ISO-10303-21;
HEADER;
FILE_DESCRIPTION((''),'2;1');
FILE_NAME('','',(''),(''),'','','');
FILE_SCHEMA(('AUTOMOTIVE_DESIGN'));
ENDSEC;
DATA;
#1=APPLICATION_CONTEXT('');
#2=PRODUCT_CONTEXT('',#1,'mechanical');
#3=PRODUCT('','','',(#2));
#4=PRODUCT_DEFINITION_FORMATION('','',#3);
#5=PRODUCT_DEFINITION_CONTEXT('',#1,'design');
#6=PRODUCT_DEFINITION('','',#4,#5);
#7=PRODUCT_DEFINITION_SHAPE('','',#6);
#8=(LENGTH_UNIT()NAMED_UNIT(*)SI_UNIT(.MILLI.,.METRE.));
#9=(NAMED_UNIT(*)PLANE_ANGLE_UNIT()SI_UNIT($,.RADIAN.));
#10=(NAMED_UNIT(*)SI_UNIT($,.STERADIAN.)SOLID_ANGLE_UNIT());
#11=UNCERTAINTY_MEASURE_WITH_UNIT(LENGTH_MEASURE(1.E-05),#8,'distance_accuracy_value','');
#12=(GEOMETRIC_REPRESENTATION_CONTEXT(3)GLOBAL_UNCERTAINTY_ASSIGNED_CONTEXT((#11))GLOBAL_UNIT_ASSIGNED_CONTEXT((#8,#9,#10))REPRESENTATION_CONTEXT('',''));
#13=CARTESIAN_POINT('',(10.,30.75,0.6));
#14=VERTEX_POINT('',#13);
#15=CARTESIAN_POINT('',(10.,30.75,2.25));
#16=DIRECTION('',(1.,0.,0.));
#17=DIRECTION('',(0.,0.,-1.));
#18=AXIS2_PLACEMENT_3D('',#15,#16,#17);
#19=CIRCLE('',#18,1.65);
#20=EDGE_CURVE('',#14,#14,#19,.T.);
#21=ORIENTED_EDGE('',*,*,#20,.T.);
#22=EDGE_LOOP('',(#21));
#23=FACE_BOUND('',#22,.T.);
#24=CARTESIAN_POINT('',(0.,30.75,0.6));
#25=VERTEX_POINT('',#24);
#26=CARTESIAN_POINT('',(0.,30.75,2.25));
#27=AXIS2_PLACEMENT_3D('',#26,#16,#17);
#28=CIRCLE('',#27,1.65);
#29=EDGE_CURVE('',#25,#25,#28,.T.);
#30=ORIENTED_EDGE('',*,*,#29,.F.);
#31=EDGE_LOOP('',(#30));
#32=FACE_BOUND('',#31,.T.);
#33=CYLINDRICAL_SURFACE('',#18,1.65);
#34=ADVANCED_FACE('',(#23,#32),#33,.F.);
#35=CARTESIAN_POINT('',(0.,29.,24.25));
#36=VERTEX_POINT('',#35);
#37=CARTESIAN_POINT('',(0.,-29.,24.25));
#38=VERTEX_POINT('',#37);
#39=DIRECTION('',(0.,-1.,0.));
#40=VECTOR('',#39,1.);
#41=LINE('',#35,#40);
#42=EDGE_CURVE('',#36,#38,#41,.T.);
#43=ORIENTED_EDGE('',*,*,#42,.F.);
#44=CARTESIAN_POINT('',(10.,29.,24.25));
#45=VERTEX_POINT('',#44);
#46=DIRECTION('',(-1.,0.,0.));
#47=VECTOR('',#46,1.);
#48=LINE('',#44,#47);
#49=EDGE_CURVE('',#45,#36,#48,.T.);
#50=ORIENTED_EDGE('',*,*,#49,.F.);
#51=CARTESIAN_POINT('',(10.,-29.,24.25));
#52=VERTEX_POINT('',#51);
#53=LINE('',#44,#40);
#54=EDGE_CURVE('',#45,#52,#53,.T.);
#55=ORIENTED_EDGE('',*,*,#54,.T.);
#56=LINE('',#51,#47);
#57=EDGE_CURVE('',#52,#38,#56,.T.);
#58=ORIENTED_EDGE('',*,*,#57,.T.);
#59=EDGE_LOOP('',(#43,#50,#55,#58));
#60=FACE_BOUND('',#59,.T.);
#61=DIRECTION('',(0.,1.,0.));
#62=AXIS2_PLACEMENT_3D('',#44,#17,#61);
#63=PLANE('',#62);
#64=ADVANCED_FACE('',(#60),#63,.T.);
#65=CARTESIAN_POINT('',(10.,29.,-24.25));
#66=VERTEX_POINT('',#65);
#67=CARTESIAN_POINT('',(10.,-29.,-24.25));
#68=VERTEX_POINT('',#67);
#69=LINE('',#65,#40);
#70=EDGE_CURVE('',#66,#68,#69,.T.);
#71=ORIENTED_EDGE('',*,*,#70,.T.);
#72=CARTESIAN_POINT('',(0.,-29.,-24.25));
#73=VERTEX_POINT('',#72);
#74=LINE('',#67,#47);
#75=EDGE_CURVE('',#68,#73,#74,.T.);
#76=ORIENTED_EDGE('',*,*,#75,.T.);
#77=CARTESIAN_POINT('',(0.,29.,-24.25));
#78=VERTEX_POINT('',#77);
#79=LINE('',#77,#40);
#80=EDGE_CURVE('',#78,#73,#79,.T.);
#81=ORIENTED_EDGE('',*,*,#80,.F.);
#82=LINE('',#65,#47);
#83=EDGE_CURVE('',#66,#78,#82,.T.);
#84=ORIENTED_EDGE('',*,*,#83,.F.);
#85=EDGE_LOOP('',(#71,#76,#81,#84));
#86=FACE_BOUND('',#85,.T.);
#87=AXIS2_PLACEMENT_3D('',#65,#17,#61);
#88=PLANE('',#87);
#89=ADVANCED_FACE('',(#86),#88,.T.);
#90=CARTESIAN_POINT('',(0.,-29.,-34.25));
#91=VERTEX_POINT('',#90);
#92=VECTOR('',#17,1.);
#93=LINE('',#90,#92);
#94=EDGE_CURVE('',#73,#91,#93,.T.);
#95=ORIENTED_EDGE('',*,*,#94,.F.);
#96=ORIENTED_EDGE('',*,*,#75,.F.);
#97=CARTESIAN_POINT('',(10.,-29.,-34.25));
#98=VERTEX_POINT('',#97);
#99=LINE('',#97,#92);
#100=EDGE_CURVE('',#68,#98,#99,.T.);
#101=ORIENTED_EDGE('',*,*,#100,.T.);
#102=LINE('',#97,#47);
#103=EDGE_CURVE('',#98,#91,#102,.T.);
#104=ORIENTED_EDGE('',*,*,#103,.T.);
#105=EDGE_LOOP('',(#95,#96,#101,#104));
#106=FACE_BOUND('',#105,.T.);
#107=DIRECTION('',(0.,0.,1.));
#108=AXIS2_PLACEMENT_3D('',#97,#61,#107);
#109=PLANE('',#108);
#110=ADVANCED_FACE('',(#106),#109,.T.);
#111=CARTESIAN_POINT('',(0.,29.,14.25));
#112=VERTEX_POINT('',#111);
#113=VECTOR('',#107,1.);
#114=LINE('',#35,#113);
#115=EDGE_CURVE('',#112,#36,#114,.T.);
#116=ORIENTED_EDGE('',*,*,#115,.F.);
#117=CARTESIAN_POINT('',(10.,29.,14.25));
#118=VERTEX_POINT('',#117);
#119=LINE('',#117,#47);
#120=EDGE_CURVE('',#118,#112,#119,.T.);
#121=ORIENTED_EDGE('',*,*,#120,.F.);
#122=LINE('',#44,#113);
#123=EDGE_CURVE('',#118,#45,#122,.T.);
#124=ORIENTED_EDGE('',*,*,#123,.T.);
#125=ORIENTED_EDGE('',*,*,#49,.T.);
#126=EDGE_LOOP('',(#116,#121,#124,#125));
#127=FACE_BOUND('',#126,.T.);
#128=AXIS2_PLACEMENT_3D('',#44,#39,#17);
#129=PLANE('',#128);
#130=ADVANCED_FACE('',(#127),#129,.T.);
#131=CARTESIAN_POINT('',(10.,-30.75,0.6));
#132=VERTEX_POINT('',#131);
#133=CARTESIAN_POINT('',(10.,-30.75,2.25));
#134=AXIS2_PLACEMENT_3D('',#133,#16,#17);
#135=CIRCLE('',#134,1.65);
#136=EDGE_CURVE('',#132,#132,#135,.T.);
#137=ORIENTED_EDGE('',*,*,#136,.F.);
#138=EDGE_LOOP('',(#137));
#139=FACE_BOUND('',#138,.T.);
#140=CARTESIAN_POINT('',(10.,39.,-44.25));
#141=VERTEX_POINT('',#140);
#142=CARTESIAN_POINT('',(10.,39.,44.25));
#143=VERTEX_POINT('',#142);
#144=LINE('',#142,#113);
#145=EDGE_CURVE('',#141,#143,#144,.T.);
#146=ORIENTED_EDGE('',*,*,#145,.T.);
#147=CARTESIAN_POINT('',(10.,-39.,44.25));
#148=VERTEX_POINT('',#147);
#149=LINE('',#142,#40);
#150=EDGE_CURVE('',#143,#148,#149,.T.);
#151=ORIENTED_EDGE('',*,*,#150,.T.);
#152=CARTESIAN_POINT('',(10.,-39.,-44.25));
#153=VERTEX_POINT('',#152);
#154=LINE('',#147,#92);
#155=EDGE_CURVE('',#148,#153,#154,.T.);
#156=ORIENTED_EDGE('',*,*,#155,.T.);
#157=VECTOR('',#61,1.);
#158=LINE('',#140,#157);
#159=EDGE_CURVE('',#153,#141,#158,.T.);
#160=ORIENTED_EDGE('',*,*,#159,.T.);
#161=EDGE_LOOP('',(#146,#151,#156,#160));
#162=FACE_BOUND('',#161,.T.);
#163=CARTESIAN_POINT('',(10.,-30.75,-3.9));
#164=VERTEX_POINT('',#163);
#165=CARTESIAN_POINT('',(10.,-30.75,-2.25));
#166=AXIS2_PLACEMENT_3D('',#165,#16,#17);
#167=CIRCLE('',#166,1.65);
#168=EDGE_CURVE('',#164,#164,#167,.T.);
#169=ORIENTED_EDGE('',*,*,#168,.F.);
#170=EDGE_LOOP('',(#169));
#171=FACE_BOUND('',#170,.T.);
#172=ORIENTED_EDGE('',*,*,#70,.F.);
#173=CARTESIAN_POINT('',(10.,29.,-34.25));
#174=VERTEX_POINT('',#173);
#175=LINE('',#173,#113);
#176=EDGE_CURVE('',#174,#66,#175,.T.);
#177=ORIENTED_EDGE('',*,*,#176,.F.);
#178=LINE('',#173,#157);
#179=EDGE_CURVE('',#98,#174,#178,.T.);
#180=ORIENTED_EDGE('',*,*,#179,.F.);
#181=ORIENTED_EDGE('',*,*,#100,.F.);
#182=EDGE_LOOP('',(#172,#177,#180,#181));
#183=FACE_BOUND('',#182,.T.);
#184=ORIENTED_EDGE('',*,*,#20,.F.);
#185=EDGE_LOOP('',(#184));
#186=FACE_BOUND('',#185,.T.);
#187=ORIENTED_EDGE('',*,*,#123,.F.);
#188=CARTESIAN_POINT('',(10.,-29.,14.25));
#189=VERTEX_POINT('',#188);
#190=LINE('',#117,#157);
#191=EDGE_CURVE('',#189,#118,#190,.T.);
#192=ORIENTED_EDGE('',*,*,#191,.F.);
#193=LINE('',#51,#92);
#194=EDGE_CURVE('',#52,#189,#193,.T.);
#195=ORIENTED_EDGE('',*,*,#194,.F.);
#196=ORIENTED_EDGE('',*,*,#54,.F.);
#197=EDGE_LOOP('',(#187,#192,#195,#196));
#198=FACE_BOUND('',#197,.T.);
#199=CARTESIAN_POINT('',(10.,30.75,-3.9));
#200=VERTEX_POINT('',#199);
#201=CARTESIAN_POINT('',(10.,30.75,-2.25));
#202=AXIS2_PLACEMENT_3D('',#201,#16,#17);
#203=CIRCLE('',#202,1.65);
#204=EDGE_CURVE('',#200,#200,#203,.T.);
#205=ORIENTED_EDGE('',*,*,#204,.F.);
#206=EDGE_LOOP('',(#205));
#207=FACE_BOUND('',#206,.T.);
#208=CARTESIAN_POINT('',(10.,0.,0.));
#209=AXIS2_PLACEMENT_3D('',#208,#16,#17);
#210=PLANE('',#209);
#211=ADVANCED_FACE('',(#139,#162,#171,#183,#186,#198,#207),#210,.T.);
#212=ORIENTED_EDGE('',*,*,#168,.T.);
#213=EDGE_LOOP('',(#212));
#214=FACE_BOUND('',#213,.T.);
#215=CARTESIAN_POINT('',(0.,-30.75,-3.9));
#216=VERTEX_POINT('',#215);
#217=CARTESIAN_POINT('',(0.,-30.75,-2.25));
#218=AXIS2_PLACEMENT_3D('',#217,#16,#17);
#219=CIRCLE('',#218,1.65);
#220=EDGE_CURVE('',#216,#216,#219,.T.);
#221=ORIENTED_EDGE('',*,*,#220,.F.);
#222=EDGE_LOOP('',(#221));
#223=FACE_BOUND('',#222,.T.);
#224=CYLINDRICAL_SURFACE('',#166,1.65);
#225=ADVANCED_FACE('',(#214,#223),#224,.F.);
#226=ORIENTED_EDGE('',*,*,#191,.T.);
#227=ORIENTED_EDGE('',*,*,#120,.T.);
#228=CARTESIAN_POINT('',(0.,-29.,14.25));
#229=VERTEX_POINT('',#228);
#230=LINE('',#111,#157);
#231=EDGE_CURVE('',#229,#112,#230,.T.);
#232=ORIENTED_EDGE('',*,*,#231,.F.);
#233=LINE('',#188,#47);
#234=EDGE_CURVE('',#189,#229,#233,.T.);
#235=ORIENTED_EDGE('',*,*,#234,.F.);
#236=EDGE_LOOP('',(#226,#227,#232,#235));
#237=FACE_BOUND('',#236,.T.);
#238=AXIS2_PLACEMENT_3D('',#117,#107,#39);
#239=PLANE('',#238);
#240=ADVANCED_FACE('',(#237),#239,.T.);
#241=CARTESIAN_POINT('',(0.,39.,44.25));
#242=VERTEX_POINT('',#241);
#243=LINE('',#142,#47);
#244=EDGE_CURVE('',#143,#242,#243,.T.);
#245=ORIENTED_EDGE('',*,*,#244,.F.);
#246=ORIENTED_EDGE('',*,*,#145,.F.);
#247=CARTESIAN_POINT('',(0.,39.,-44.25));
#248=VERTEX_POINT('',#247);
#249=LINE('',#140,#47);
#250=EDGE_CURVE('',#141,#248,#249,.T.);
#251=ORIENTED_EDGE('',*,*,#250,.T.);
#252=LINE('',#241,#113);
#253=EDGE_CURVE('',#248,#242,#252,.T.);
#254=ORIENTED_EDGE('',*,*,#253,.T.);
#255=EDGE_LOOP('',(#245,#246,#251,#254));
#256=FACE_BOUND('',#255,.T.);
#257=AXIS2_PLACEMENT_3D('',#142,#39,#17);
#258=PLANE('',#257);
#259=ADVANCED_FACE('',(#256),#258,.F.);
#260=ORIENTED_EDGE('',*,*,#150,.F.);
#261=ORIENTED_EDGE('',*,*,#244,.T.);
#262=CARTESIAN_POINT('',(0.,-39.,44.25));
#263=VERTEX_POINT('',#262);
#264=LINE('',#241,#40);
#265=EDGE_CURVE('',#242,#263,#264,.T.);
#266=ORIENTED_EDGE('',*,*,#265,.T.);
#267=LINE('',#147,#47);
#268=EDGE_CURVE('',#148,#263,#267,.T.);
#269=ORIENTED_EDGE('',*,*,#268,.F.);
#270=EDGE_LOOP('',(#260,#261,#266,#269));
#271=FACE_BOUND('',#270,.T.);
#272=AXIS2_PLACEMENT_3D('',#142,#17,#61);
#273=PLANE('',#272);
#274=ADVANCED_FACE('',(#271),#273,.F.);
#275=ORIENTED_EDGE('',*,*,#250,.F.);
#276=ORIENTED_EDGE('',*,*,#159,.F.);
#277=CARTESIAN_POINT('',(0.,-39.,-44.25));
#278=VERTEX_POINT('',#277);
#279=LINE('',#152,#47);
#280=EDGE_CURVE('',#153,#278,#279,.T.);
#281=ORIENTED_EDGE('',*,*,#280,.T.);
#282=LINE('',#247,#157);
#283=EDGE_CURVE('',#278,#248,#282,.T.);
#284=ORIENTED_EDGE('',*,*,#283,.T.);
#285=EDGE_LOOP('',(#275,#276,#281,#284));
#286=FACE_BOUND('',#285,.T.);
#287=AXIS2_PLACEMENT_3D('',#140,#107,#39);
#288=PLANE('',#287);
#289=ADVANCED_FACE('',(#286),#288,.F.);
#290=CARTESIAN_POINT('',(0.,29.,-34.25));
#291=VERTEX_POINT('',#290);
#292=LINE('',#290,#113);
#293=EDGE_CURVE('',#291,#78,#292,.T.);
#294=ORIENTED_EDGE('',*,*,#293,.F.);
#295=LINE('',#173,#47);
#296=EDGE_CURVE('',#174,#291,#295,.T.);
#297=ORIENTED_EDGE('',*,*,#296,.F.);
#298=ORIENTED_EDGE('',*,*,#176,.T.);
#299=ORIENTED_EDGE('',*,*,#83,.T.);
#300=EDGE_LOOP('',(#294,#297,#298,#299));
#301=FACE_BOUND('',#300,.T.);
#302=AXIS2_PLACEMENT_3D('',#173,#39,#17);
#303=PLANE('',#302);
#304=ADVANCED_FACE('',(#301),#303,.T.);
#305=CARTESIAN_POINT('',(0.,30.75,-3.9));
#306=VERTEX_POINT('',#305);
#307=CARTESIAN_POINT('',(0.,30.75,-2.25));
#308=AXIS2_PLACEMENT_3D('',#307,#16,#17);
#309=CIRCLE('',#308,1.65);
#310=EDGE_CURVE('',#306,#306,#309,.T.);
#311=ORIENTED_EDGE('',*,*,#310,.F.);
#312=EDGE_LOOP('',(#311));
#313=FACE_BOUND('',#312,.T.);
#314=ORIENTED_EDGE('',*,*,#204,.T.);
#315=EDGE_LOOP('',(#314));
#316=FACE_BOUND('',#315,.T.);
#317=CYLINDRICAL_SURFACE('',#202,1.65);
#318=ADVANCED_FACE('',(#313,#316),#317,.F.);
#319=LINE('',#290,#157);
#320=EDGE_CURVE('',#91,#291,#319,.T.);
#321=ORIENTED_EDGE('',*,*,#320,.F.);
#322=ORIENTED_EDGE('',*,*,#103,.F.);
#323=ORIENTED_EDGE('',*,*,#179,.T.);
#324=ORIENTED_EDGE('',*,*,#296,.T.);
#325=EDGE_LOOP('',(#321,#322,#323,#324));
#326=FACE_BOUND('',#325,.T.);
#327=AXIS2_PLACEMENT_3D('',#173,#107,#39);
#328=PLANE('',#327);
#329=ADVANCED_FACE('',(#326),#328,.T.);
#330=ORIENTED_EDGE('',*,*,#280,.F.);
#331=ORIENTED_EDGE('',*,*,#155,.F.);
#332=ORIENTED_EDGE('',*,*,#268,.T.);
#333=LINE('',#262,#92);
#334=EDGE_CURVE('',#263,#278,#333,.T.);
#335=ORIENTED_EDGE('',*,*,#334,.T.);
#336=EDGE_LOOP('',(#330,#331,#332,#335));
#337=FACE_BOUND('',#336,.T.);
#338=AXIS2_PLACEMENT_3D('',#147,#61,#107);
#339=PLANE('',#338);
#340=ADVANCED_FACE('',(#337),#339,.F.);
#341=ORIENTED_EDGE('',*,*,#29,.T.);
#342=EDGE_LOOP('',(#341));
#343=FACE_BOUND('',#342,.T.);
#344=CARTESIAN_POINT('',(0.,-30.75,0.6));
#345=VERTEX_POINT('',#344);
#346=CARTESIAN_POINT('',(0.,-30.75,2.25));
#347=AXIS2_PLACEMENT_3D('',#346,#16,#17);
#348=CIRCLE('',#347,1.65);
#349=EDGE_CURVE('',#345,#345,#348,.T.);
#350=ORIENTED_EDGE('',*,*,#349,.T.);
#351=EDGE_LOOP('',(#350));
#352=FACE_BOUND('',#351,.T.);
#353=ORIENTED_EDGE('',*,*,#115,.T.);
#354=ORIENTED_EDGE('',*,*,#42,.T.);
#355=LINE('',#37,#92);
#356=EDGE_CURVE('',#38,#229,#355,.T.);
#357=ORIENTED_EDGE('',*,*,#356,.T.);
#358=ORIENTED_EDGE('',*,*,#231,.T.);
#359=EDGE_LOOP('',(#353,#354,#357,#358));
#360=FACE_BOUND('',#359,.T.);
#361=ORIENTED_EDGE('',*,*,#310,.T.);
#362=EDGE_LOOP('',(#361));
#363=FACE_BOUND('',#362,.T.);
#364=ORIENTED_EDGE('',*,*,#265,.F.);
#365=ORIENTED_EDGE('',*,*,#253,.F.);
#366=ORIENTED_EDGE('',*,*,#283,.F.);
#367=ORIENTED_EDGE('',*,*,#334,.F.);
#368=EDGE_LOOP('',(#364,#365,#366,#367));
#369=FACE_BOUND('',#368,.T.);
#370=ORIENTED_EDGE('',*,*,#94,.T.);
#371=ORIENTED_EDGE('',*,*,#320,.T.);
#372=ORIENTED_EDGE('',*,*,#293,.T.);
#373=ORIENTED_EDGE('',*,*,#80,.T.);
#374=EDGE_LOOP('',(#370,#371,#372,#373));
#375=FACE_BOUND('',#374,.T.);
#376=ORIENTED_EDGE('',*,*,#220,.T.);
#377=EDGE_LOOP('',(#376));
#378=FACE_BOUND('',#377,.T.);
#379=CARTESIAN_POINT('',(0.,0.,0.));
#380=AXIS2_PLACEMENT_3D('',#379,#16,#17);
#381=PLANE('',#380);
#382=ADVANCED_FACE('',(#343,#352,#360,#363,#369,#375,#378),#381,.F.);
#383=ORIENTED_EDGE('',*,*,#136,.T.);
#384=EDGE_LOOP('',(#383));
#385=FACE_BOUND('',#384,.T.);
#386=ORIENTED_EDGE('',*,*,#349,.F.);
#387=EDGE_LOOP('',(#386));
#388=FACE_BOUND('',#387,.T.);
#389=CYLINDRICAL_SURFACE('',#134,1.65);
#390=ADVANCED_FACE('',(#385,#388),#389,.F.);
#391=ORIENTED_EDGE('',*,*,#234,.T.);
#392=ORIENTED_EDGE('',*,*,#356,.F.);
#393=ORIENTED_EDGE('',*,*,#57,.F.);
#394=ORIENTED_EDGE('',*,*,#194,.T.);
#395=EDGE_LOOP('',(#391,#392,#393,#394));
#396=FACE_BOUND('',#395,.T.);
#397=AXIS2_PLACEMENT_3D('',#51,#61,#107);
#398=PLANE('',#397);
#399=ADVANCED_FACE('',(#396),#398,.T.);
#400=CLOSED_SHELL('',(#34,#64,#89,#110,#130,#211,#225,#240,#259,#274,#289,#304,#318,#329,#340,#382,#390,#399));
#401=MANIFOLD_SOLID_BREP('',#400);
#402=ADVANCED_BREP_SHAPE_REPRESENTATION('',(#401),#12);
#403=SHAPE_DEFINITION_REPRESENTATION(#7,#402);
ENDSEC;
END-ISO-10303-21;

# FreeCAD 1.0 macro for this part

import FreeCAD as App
import Part
import Sketcher

V = App.Vector


def add_polygon(sketch, points):
    """Adds a closed chain of lines whose ends are joined by coincident constraints."""
    first, n = sketch.GeometryCount, len(points)
    for a, b in zip(points, points[1:] + points[:1]):
        sketch.addGeometry(Part.LineSegment(App.Vector(*a, 0), App.Vector(*b, 0)), False)
    for i in range(n):
        sketch.addConstraint(Sketcher.Constraint("Coincident", first + i, 2, first + (i + 1) % n, 1))

doc = App.newDocument("Part")
body = doc.addObject("PartDesign::Body", "Body")

# Sketch on YZ plane
sketch1 = body.newObject("Sketcher::SketchObject", "Sketch")
sketch1.AttachmentSupport = (doc.getObject("YZ_Plane"), [""])
sketch1.MapMode = "FlatFace"
add_polygon(sketch1, [(39, 44), (-39, 44), (-39, -44), (39, -44)])  # lines 0-3
add_polygon(sketch1, [(-29, 14), (-29, 24), (29, 24), (29, 14)])  # lines 4-7
add_polygon(sketch1, [(-29, -34), (-29, -24), (29, -24), (29, -34)])  # lines 8-11
sketch1.addConstraint([
    Sketcher.Constraint("Horizontal", 0),
    Sketcher.Constraint("Vertical", 1),
    Sketcher.Constraint("Horizontal", 2),
    Sketcher.Constraint("Vertical", 3),
    Sketcher.Constraint("Vertical", 4),
    Sketcher.Constraint("Horizontal", 5),
    Sketcher.Constraint("Vertical", 6),
    Sketcher.Constraint("Horizontal", 7),
    Sketcher.Constraint("Vertical", 8),
    Sketcher.Constraint("Horizontal", 9),
    Sketcher.Constraint("Vertical", 10),
    Sketcher.Constraint("Horizontal", 11),
    Sketcher.Constraint("Symmetric", 0, 2, 2, 2, -1, 1),
    Sketcher.Constraint("Symmetric", 5, 2, 8, 2, -1, 1),
    Sketcher.Constraint("Vertical", 7, 2, 8, 2),
    Sketcher.Constraint("Vertical", 6, 2, 9, 2),
    Sketcher.Constraint("Equal", 6, 8),
    Sketcher.Constraint("DistanceX", 0, 2, 0, 1, 78.0),
    Sketcher.Constraint("DistanceX", 5, 1, 5, 2, 58.0),
    Sketcher.Constraint("DistanceY", 4, 1, 4, 2, 10.0),
    Sketcher.Constraint("DistanceY", 1, 2, 1, 1, 88.5),
    Sketcher.Constraint("DistanceY", 4, 2, 0, 2, 20.0),
])
pad1 = body.newObject("PartDesign::Pad", "Pad")
pad1.Profile = sketch1
pad1.Length = 10

# Sketch on YZ plane
sketch2 = body.newObject("Sketcher::SketchObject", "Sketch001")
sketch2.AttachmentSupport = (doc.getObject("YZ_Plane"), [""])
sketch2.MapMode = "FlatFace"
sketch2.AttachmentOffset = App.Placement(V(0, 0, 10), App.Rotation())
sketch2.addGeometry([
    Part.Circle(V(-30.8, 2.2, 0), V(0, 0, 1), 1.6),
    Part.Circle(V(30.8, 2.2, 0), V(0, 0, 1), 1.6),
    Part.Circle(V(-30.8, -2.2, 0), V(0, 0, 1), 1.6),
    Part.Circle(V(30.8, -2.2, 0), V(0, 0, 1), 1.6),
], False)
sketch2.addConstraint([
    Sketcher.Constraint("Equal", 0, 1),
    Sketcher.Constraint("Equal", 1, 2),
    Sketcher.Constraint("Equal", 2, 3),
    Sketcher.Constraint("Symmetric", 1, 3, 2, 3, -1, 1),
    Sketcher.Constraint("Symmetric", 0, 3, 3, 3, -1, 1),
    Sketcher.Constraint("Symmetric", 0, 3, 1, 3, -2),
    Sketcher.Constraint("Diameter", 0, 3.3),
    Sketcher.Constraint("DistanceX", 0, 3, 1, 3, 61.5),
    Sketcher.Constraint("DistanceY", 2, 3, 0, 3, 4.5),
])
doc.recompute()
hole = body.newObject("PartDesign::Hole", "Hole")
hole.Profile = sketch2
hole.ThreadType = "None"
hole.Diameter = 3.3
hole.DepthType = "ThroughAll"

doc.recompute()
